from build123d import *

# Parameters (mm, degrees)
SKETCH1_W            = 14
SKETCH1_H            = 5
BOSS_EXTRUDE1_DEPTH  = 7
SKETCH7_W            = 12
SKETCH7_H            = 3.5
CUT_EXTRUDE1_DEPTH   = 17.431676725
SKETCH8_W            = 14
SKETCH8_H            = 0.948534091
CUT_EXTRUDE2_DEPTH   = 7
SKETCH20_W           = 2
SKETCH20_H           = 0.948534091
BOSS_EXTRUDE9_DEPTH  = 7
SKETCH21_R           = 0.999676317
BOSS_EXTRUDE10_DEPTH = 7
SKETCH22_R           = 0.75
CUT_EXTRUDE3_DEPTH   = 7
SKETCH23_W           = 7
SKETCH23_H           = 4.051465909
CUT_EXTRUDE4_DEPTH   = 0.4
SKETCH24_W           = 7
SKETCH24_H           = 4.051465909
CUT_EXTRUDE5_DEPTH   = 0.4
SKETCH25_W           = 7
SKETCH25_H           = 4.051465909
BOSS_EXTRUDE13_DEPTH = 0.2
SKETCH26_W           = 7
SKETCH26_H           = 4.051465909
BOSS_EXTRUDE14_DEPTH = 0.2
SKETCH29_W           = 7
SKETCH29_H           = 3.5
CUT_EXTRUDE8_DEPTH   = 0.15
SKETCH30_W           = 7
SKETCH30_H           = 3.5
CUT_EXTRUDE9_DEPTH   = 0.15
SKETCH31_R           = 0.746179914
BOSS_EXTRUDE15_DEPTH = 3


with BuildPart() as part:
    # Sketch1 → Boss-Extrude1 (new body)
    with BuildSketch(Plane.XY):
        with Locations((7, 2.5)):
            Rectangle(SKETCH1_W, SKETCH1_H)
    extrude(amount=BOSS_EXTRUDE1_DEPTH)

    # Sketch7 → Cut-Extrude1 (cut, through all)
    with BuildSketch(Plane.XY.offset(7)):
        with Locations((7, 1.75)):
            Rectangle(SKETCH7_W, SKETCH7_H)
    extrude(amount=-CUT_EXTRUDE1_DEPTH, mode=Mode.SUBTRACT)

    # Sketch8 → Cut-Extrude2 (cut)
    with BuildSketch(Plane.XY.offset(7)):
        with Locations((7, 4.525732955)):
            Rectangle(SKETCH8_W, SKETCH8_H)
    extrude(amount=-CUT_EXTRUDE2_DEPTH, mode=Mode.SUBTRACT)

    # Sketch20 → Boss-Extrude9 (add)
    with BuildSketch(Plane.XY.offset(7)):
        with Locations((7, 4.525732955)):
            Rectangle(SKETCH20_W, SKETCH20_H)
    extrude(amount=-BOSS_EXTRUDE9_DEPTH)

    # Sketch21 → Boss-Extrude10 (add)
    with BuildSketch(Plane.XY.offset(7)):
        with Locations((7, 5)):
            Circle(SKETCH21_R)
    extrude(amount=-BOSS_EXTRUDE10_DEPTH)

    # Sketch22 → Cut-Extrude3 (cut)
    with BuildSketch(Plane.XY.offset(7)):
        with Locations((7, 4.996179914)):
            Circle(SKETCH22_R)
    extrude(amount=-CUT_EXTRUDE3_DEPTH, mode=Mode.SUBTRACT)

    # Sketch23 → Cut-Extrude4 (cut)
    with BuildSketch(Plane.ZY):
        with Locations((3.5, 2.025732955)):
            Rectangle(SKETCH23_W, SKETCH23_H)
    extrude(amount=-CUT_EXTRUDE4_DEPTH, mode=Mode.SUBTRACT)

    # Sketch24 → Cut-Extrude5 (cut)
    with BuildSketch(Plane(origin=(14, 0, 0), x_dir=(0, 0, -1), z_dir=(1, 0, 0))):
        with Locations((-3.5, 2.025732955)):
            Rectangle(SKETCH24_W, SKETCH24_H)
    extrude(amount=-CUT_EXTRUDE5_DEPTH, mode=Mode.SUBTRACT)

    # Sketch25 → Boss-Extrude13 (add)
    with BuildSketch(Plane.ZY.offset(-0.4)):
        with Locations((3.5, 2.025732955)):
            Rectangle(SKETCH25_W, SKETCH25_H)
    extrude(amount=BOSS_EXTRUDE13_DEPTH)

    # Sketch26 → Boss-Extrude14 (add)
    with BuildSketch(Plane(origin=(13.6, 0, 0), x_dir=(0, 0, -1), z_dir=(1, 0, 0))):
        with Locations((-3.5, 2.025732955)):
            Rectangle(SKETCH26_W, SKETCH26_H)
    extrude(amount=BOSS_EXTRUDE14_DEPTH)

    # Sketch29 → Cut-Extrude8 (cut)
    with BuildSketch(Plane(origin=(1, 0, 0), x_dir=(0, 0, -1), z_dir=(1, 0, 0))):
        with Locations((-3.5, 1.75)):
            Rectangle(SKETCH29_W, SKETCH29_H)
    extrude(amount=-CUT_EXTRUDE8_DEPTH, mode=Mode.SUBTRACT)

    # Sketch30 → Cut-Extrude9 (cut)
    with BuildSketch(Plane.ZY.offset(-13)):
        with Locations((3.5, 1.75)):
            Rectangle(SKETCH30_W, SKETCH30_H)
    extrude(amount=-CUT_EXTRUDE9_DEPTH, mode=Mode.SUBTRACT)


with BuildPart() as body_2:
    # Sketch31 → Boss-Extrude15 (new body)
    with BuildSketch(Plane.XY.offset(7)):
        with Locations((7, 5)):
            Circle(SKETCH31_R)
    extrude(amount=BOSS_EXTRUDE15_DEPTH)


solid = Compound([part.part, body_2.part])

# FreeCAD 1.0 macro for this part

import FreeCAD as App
import Part
import Sketcher


def add_polygon(sketch, points):
    """Adds a closed chain of lines whose ends are joined by coincident constraints."""
    first, n = sketch.GeometryCount, len(points)
    for a, b in zip(points, points[1:] + points[:1]):
        sketch.addGeometry(Part.LineSegment(App.Vector(*a, 0), App.Vector(*b, 0)), False)
    for i in range(n):
        sketch.addConstraint(Sketcher.Constraint("Coincident", first + i, 2, first + (i + 1) % n, 1))

doc = App.newDocument("Part")
body = doc.addObject("PartDesign::Body", "Body")

# Sketch on XY plane
sketch1 = body.newObject("Sketcher::SketchObject", "Sketch")
sketch1.AttachmentSupport = (doc.getObject("XY_Plane"), [""])
sketch1.MapMode = "FlatFace"
add_polygon(sketch1, [(0, 5), (0, 0), (14, 0), (14, 5)])  # lines 0-3
sketch1.addConstraint(Sketcher.Constraint("Vertical", 0))
sketch1.addConstraint(Sketcher.Constraint("Horizontal", 1))
sketch1.addConstraint(Sketcher.Constraint("Vertical", 2))
sketch1.addConstraint(Sketcher.Constraint("Horizontal", 3))
sketch1.addConstraint(Sketcher.Constraint("Coincident", 0, 2, -1, 1))
sketch1.addConstraint(Sketcher.Constraint("DistanceX", 1, 1, 1, 2, 14.0))
sketch1.addConstraint(Sketcher.Constraint("DistanceY", 0, 2, 0, 1, 5.0))
pad1 = body.newObject("PartDesign::Pad", "Pad")
pad1.Profile = sketch1
pad1.Length = 7

# Sketch on XY plane
sketch2 = body.newObject("Sketcher::SketchObject", "Sketch001")
sketch2.AttachmentSupport = (doc.getObject("XY_Plane"), [""])
sketch2.MapMode = "FlatFace"
sketch2.AttachmentOffset = App.Placement(App.Vector(0, 0, 7), App.Rotation())
add_polygon(sketch2, [(1, 3.5), (1, 0), (13, 0), (13, 3.5)])  # lines 0-3
sketch2.addConstraint(Sketcher.Constraint("Vertical", 0))
sketch2.addConstraint(Sketcher.Constraint("Horizontal", 1))
sketch2.addConstraint(Sketcher.Constraint("Vertical", 2))
sketch2.addConstraint(Sketcher.Constraint("Horizontal", 3))
sketch2.addConstraint(Sketcher.Constraint("PointOnObject", 0, 2, -1))
sketch2.addConstraint(Sketcher.Constraint("DistanceX", 1, 1, 1, 2, 12.0))
sketch2.addConstraint(Sketcher.Constraint("DistanceY", 0, 2, 0, 1, 3.5))
sketch2.addConstraint(Sketcher.Constraint("DistanceX", -1, 1, 0, 2, 1.0))
pocket1 = body.newObject("PartDesign::Pocket", "Pocket")
pocket1.Profile = sketch2
pocket1.Type = "ThroughAll"

# Sketch on XY plane
sketch3 = body.newObject("Sketcher::SketchObject", "Sketch002")
sketch3.AttachmentSupport = (doc.getObject("XY_Plane"), [""])
sketch3.MapMode = "FlatFace"
sketch3.AttachmentOffset = App.Placement(App.Vector(0, 0, 7), App.Rotation())
add_polygon(sketch3, [(0, 5), (0, 4.1), (14, 4.1), (14, 5)])  # lines 0-3
sketch3.addConstraint(Sketcher.Constraint("Vertical", 0))
sketch3.addConstraint(Sketcher.Constraint("Horizontal", 1))
sketch3.addConstraint(Sketcher.Constraint("Vertical", 2))
sketch3.addConstraint(Sketcher.Constraint("Horizontal", 3))
sketch3.addConstraint(Sketcher.Constraint("PointOnObject", 0, 2, -2))
sketch3.addConstraint(Sketcher.Constraint("DistanceX", 1, 1, 1, 2, 14.0))
sketch3.addConstraint(Sketcher.Constraint("DistanceY", -1, 1, 2, 2, 5.0))
sketch3.addConstraint(Sketcher.Constraint("DistanceY", 0, 2, 0, 1, 0.948534))
pocket2 = body.newObject("PartDesign::Pocket", "Pocket001")
pocket2.Profile = sketch3
pocket2.Length = 7

# Sketch on XY plane
sketch4 = body.newObject("Sketcher::SketchObject", "Sketch003")
sketch4.AttachmentSupport = (doc.getObject("XY_Plane"), [""])
sketch4.MapMode = "FlatFace"
sketch4.AttachmentOffset = App.Placement(App.Vector(0, 0, 7), App.Rotation())
add_polygon(sketch4, [(6, 5), (6, 4.1), (8, 4.1), (8, 5)])  # lines 0-3
sketch4.addConstraint(Sketcher.Constraint("Vertical", 0))
sketch4.addConstraint(Sketcher.Constraint("Horizontal", 1))
sketch4.addConstraint(Sketcher.Constraint("Vertical", 2))
sketch4.addConstraint(Sketcher.Constraint("Horizontal", 3))
sketch4.addConstraint(Sketcher.Constraint("DistanceX", 1, 1, 1, 2, 2.0))
sketch4.addConstraint(Sketcher.Constraint("DistanceX", -1, 1, 0, 2, 6.0))
sketch4.addConstraint(Sketcher.Constraint("DistanceY", -1, 1, 2, 2, 5.0))
sketch4.addConstraint(Sketcher.Constraint("DistanceY", 0, 2, 0, 1, 0.948534))
pad2 = body.newObject("PartDesign::Pad", "Pad001")
pad2.Profile = sketch4
pad2.Length = 7
pad2.Reversed = True

# Sketch on XY plane
sketch5 = body.newObject("Sketcher::SketchObject", "Sketch004")
sketch5.AttachmentSupport = (doc.getObject("XY_Plane"), [""])
sketch5.MapMode = "FlatFace"
sketch5.AttachmentOffset = App.Placement(App.Vector(0, 0, 7), App.Rotation())
sketch5.addGeometry(Part.Circle(App.Vector(7, 5, 0), App.Vector(0, 0, 1), 1), False)
sketch5.addConstraint(Sketcher.Constraint("DistanceX", -1, 1, 0, 3, 7.0))
sketch5.addConstraint(Sketcher.Constraint("DistanceY", -1, 1, 0, 3, 5.0))
sketch5.addConstraint(Sketcher.Constraint("Diameter", 0, 1.999353))
pad3 = body.newObject("PartDesign::Pad", "Pad002")
pad3.Profile = sketch5
pad3.Length = 7
pad3.Reversed = True

# Sketch on XY plane
sketch6 = body.newObject("Sketcher::SketchObject", "Sketch005")
sketch6.AttachmentSupport = (doc.getObject("XY_Plane"), [""])
sketch6.MapMode = "FlatFace"
sketch6.AttachmentOffset = App.Placement(App.Vector(0, 0, 7), App.Rotation())
sketch6.addGeometry(Part.Circle(App.Vector(7, 5, 0), App.Vector(0, 0, 1), 0.8), False)
sketch6.addConstraint(Sketcher.Constraint("Diameter", 0, 1.5))
sketch6.addConstraint(Sketcher.Constraint("DistanceX", -1, 1, 0, 3, 7.0))
sketch6.addConstraint(Sketcher.Constraint("DistanceY", -1, 1, 0, 3, 4.99618))
pocket3 = body.newObject("PartDesign::Pocket", "Pocket002")
pocket3.Profile = sketch6
pocket3.Length = 7

# Sketch on YZ plane
sketch7 = body.newObject("Sketcher::SketchObject", "Sketch006")
sketch7.AttachmentSupport = (doc.getObject("YZ_Plane"), [""])
sketch7.MapMode = "FlatFace"
add_polygon(sketch7, [(4.1, 0), (0, 0), (0, 7), (4.1, 7)])  # lines 0-3
sketch7.addConstraint(Sketcher.Constraint("Horizontal", 0))
sketch7.addConstraint(Sketcher.Constraint("Vertical", 1))
sketch7.addConstraint(Sketcher.Constraint("Horizontal", 2))
sketch7.addConstraint(Sketcher.Constraint("Vertical", 3))
sketch7.addConstraint(Sketcher.Constraint("Coincident", 0, 2, -1, 1))
sketch7.addConstraint(Sketcher.Constraint("DistanceY", 1, 1, 1, 2, 7.0))
sketch7.addConstraint(Sketcher.Constraint("DistanceX", 0, 2, 0, 1, 4.051466))
pocket4 = body.newObject("PartDesign::Pocket", "Pocket003")
pocket4.Profile = sketch7
pocket4.Length = 0.4
pocket4.Reversed = True

# Sketch on YZ plane
sketch8 = body.newObject("Sketcher::SketchObject", "Sketch007")
sketch8.AttachmentSupport = (doc.getObject("YZ_Plane"), [""])
sketch8.MapMode = "FlatFace"
sketch8.AttachmentOffset = App.Placement(App.Vector(0, 0, 14), App.Rotation())
add_polygon(sketch8, [(4.1, 7), (0, 7), (0, 0), (4.1, 0)])  # lines 0-3
sketch8.addConstraint(Sketcher.Constraint("Horizontal", 0))
sketch8.addConstraint(Sketcher.Constraint("Vertical", 1))
sketch8.addConstraint(Sketcher.Constraint("Horizontal", 2))
sketch8.addConstraint(Sketcher.Constraint("Vertical", 3))
sketch8.addConstraint(Sketcher.Constraint("Coincident", 1, 2, -1, 1))
sketch8.addConstraint(Sketcher.Constraint("DistanceY", 1, 2, 1, 1, 7.0))
sketch8.addConstraint(Sketcher.Constraint("DistanceX", 0, 2, 0, 1, 4.051466))
pocket5 = body.newObject("PartDesign::Pocket", "Pocket004")
pocket5.Profile = sketch8
pocket5.Length = 0.4

# Sketch on YZ plane
sketch9 = body.newObject("Sketcher::SketchObject", "Sketch008")
sketch9.AttachmentSupport = (doc.getObject("YZ_Plane"), [""])
sketch9.MapMode = "FlatFace"
sketch9.AttachmentOffset = App.Placement(App.Vector(0, 0, 0.4), App.Rotation())
add_polygon(sketch9, [(4.1, 0), (0, 0), (0, 7), (4.1, 7)])  # lines 0-3
sketch9.addConstraint(Sketcher.Constraint("Horizontal", 0))
sketch9.addConstraint(Sketcher.Constraint("Vertical", 1))
sketch9.addConstraint(Sketcher.Constraint("Horizontal", 2))
sketch9.addConstraint(Sketcher.Constraint("Vertical", 3))
sketch9.addConstraint(Sketcher.Constraint("Coincident", 0, 2, -1, 1))
sketch9.addConstraint(Sketcher.Constraint("DistanceY", 1, 1, 1, 2, 7.0))
sketch9.addConstraint(Sketcher.Constraint("DistanceX", 0, 2, 0, 1, 4.051466))
pad4 = body.newObject("PartDesign::Pad", "Pad003")
pad4.Profile = sketch9
pad4.Length = 0.2
pad4.Reversed = True

# Sketch on YZ plane
sketch10 = body.newObject("Sketcher::SketchObject", "Sketch009")
sketch10.AttachmentSupport = (doc.getObject("YZ_Plane"), [""])
sketch10.MapMode = "FlatFace"
sketch10.AttachmentOffset = App.Placement(App.Vector(0, 0, 13.6), App.Rotation())
add_polygon(sketch10, [(4.1, 7), (0, 7), (0, 0), (4.1, 0)])  # lines 0-3
sketch10.addConstraint(Sketcher.Constraint("Horizontal", 0))
sketch10.addConstraint(Sketcher.Constraint("Vertical", 1))
sketch10.addConstraint(Sketcher.Constraint("Horizontal", 2))
sketch10.addConstraint(Sketcher.Constraint("Vertical", 3))
sketch10.addConstraint(Sketcher.Constraint("Coincident", 1, 2, -1, 1))
sketch10.addConstraint(Sketcher.Constraint("DistanceY", 1, 2, 1, 1, 7.0))
sketch10.addConstraint(Sketcher.Constraint("DistanceX", 0, 2, 0, 1, 4.051466))
pad5 = body.newObject("PartDesign::Pad", "Pad004")
pad5.Profile = sketch10
pad5.Length = 0.2

# Sketch on YZ plane
sketch11 = body.newObject("Sketcher::SketchObject", "Sketch010")
sketch11.AttachmentSupport = (doc.getObject("YZ_Plane"), [""])
sketch11.MapMode = "FlatFace"
sketch11.AttachmentOffset = App.Placement(App.Vector(0, 0, 1), App.Rotation())
add_polygon(sketch11, [(3.5, 7), (0, 7), (0, 0), (3.5, 0)])  # lines 0-3
sketch11.addConstraint(Sketcher.Constraint("Horizontal", 0))
sketch11.addConstraint(Sketcher.Constraint("Vertical", 1))
sketch11.addConstraint(Sketcher.Constraint("Horizontal", 2))
sketch11.addConstraint(Sketcher.Constraint("Vertical", 3))
sketch11.addConstraint(Sketcher.Constraint("Coincident", 1, 2, -1, 1))
sketch11.addConstraint(Sketcher.Constraint("DistanceY", 1, 2, 1, 1, 7.0))
sketch11.addConstraint(Sketcher.Constraint("DistanceX", 0, 2, 0, 1, 3.5))
pocket6 = body.newObject("PartDesign::Pocket", "Pocket005")
pocket6.Profile = sketch11
pocket6.Length = 0.15

# Sketch on YZ plane
sketch12 = body.newObject("Sketcher::SketchObject", "Sketch011")
sketch12.AttachmentSupport = (doc.getObject("YZ_Plane"), [""])
sketch12.MapMode = "FlatFace"
sketch12.AttachmentOffset = App.Placement(App.Vector(0, 0, 13), App.Rotation())
add_polygon(sketch12, [(3.5, 0), (0, 0), (0, 7), (3.5, 7)])  # lines 0-3
sketch12.addConstraint(Sketcher.Constraint("Horizontal", 0))
sketch12.addConstraint(Sketcher.Constraint("Vertical", 1))
sketch12.addConstraint(Sketcher.Constraint("Horizontal", 2))
sketch12.addConstraint(Sketcher.Constraint("Vertical", 3))
sketch12.addConstraint(Sketcher.Constraint("Coincident", 0, 2, -1, 1))
sketch12.addConstraint(Sketcher.Constraint("DistanceY", 1, 1, 1, 2, 7.0))
sketch12.addConstraint(Sketcher.Constraint("DistanceX", 0, 2, 0, 1, 3.5))
pocket7 = body.newObject("PartDesign::Pocket", "Pocket006")
pocket7.Profile = sketch12
pocket7.Length = 0.15
pocket7.Reversed = True
body2 = doc.addObject("PartDesign::Body", "Body001")

# Sketch on XY plane
sketch13 = body2.newObject("Sketcher::SketchObject", "Sketch012")
sketch13.AttachmentSupport = (doc.getObject("XY_Plane001"), [""])
sketch13.MapMode = "FlatFace"
sketch13.AttachmentOffset = App.Placement(App.Vector(0, 0, 7), App.Rotation())
sketch13.addGeometry(Part.Circle(App.Vector(7, 5, 0), App.Vector(0, 0, 1), 0.7), False)
sketch13.addConstraint(Sketcher.Constraint("DistanceX", -1, 1, 0, 3, 7.0))
sketch13.addConstraint(Sketcher.Constraint("DistanceY", -1, 1, 0, 3, 5.0))
sketch13.addConstraint(Sketcher.Constraint("Diameter", 0, 1.49236))
pad6 = body2.newObject("PartDesign::Pad", "Pad005")
pad6.Profile = sketch13
pad6.Length = 3

doc.recompute()
